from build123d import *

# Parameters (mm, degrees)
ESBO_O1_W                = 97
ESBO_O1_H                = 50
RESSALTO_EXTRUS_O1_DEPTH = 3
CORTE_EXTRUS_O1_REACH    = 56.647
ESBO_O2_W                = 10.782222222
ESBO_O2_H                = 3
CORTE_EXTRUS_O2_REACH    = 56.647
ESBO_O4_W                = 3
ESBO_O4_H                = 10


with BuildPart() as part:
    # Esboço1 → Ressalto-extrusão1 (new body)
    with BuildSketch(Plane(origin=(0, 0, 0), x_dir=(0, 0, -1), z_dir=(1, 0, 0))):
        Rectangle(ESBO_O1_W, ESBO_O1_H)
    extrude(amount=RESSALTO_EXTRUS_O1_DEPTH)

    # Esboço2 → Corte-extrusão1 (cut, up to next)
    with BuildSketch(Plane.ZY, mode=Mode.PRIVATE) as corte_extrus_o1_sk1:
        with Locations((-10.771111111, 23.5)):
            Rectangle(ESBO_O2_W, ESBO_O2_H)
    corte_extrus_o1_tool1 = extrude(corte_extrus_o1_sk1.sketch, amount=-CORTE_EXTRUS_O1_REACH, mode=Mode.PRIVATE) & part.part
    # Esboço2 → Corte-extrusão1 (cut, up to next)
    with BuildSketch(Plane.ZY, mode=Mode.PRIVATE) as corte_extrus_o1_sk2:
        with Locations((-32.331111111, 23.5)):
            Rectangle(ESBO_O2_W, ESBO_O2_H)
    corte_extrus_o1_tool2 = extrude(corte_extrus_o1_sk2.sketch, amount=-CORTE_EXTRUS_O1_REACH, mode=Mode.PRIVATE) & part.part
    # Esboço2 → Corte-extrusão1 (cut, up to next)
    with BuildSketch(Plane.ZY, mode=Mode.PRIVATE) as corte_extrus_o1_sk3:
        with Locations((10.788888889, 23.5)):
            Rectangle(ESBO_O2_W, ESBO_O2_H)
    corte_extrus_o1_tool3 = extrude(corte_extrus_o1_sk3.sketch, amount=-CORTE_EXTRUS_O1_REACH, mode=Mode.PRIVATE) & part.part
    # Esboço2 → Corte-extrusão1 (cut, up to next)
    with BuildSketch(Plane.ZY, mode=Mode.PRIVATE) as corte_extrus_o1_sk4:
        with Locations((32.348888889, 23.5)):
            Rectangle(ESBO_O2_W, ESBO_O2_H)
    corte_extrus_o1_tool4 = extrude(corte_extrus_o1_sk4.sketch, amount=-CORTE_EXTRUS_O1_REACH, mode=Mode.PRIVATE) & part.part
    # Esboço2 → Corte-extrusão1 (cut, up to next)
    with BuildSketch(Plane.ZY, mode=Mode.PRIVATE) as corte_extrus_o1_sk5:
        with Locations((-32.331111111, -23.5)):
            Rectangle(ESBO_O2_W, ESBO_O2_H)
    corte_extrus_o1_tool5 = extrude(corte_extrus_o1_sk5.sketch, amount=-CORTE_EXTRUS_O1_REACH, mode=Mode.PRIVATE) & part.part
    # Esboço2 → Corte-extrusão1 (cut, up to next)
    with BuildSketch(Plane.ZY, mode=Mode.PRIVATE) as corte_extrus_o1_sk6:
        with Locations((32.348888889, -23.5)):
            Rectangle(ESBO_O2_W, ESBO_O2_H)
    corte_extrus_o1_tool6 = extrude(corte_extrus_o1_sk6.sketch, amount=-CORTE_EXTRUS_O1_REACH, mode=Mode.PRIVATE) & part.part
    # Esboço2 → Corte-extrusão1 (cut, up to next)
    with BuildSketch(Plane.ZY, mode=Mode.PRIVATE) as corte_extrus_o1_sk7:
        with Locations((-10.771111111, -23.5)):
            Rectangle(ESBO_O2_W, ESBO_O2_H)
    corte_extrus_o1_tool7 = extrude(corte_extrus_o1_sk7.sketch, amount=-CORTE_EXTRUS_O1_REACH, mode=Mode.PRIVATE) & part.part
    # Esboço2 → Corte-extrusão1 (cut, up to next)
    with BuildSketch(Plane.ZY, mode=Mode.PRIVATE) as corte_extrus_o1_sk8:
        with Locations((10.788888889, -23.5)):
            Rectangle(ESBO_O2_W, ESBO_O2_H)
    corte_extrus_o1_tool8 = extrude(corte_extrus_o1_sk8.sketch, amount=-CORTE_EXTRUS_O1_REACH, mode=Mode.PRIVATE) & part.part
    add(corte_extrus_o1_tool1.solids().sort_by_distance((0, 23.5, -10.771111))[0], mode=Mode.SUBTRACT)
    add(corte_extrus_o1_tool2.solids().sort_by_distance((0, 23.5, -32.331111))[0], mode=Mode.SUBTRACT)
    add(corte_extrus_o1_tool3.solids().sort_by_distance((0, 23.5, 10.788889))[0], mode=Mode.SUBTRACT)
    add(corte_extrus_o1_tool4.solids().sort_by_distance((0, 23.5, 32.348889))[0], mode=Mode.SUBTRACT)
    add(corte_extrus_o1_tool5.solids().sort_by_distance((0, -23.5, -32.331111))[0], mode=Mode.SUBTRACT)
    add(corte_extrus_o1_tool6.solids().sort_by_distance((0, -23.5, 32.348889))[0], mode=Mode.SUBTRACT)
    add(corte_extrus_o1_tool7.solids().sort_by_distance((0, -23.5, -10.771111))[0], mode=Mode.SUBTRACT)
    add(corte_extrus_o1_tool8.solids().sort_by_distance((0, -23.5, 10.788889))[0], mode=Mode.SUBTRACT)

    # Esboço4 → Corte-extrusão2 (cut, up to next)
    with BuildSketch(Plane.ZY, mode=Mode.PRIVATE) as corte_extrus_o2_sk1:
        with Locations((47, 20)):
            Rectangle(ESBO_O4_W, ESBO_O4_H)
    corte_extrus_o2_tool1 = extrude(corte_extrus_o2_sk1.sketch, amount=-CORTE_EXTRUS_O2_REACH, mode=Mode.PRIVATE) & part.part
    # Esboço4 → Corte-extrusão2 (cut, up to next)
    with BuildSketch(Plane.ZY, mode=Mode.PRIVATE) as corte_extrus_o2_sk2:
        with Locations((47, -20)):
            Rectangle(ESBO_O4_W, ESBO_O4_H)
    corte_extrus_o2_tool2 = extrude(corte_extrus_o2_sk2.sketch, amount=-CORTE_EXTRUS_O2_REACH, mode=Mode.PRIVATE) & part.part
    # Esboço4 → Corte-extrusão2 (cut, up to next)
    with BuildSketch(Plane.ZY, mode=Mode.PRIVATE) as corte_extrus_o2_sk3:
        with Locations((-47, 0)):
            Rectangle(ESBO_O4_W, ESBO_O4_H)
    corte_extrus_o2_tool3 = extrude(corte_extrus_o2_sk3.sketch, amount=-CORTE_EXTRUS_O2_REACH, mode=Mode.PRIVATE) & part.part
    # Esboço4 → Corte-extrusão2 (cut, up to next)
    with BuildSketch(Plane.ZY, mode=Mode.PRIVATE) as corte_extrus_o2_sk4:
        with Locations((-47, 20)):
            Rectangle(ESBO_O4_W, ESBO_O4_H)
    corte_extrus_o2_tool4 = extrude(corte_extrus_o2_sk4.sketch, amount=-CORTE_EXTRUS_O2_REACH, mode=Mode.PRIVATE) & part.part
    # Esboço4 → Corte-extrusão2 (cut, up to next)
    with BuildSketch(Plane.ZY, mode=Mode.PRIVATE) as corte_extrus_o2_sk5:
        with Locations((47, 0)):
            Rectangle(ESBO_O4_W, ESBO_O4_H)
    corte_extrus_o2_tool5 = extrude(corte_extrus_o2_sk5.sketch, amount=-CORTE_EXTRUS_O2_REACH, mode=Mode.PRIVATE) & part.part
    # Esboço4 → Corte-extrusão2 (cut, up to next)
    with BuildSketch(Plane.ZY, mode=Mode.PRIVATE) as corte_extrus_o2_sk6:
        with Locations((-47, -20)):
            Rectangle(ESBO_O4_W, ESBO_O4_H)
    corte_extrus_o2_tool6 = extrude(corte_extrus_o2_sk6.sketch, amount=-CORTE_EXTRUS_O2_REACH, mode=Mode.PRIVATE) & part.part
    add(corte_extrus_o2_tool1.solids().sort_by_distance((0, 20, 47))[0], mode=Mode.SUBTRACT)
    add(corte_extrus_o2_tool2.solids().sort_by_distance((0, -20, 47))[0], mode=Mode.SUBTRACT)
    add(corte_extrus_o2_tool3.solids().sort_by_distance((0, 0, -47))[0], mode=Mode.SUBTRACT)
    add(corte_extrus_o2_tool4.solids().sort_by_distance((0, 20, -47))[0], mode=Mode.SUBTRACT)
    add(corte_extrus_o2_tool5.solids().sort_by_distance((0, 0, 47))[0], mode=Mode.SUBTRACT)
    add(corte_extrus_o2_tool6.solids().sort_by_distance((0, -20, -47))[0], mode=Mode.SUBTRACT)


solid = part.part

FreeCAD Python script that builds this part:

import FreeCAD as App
import Part
import Sketcher

V = App.Vector
Q = App.Units.Quantity

doc = App.newDocument("Part")
body = doc.addObject("PartDesign::Body", "Body")

# Sketch on YZ plane
sketch1 = body.newObject("Sketcher::SketchObject", "Sketch")
sketch1.AttachmentSupport = (doc.getObject("YZ_Plane"), [""])
sketch1.MapMode = "FlatFace"
sketch1.addGeometry([
    Part.LineSegment(V(25, 48, 0), V(-25, 48, 0)),
    Part.LineSegment(V(-25, 48, 0), V(-25, -48, 0)),
    Part.LineSegment(V(-25, -48, 0), V(25, -48, 0)),
    Part.LineSegment(V(25, -48, 0), V(25, 48, 0)),
], False)
sketch1.addConstraint([
    Sketcher.Constraint("Coincident", 0, 2, 1, 1),
    Sketcher.Constraint("Coincident", 1, 2, 2, 1),
    Sketcher.Constraint("Coincident", 2, 2, 3, 1),
    Sketcher.Constraint("Coincident", 3, 2, 0, 1),
    Sketcher.Constraint("Horizontal", 0),
    Sketcher.Constraint("Vertical", 1),
    Sketcher.Constraint("Horizontal", 2),
    Sketcher.Constraint("Vertical", 3),
    Sketcher.Constraint("Symmetric", 0, 2, 2, 2, -1, 1),
    Sketcher.Constraint("DistanceX", 0, 2, 0, 1, Q("50 mm")),
    Sketcher.Constraint("DistanceY", 1, 2, 1, 1, Q("97 mm")),
])
pad1 = body.newObject("PartDesign::Pad", "Pad")
pad1.Profile = sketch1
pad1.Length = 3

# Sketch on YZ plane
sketch2 = body.newObject("Sketcher::SketchObject", "Sketch001")
sketch2.AttachmentSupport = (doc.getObject("YZ_Plane"), [""])
sketch2.MapMode = "FlatFace"
sketch2.addGeometry([
    Part.LineSegment(V(25, -16.2, 0), V(22, -16.2, 0)),
    Part.LineSegment(V(22, -16.2, 0), V(22, -5.4, 0)),
    Part.LineSegment(V(22, -5.4, 0), V(25, -5.4, 0)),
    Part.LineSegment(V(25, -5.4, 0), V(25, -16.2, 0)),
], False)
sketch2.addConstraint([
    Sketcher.Constraint("Coincident", 0, 2, 1, 1),
    Sketcher.Constraint("Coincident", 1, 2, 2, 1),
    Sketcher.Constraint("Coincident", 2, 2, 3, 1),
    Sketcher.Constraint("Coincident", 3, 2, 0, 1),
    Sketcher.Constraint("Horizontal", 0),
    Sketcher.Constraint("Vertical", 1),
    Sketcher.Constraint("Horizontal", 2),
    Sketcher.Constraint("Vertical", 3),
    Sketcher.Constraint("DistanceX", 0, 2, 0, 1, Q("3 mm")),
    Sketcher.Constraint("DistanceX", -1, 1, 0, 2, Q("22 mm")),
    Sketcher.Constraint("DistanceY", 1, 2, -1, 1, Q("5.38 mm")),
    Sketcher.Constraint("DistanceY", 1, 1, 1, 2, Q("10.782222 mm")),
])
pocket1 = body.newObject("PartDesign::Pocket", "Pocket")
pocket1.Profile = sketch2
pocket1.Type = "UpToFirst"
pocket1.Reversed = True

# Sketch on YZ plane
sketch3 = body.newObject("Sketcher::SketchObject", "Sketch002")
sketch3.AttachmentSupport = (doc.getObject("YZ_Plane"), [""])
sketch3.MapMode = "FlatFace"
sketch3.addGeometry([
    Part.LineSegment(V(25, -37.7, 0), V(22, -37.7, 0)),
    Part.LineSegment(V(22, -37.7, 0), V(22, -26.9, 0)),
    Part.LineSegment(V(22, -26.9, 0), V(25, -26.9, 0)),
    Part.LineSegment(V(25, -26.9, 0), V(25, -37.7, 0)),
], False)
sketch3.addConstraint([
    Sketcher.Constraint("Coincident", 0, 2, 1, 1),
    Sketcher.Constraint("Coincident", 1, 2, 2, 1),
    Sketcher.Constraint("Coincident", 2, 2, 3, 1),
    Sketcher.Constraint("Coincident", 3, 2, 0, 1),
    Sketcher.Constraint("Horizontal", 0),
    Sketcher.Constraint("Vertical", 1),
    Sketcher.Constraint("Horizontal", 2),
    Sketcher.Constraint("Vertical", 3),
    Sketcher.Constraint("DistanceX", 0, 2, 0, 1, Q("3 mm")),
    Sketcher.Constraint("DistanceX", -1, 1, 0, 2, Q("22 mm")),
    Sketcher.Constraint("DistanceY", 1, 2, -1, 1, Q("26.94 mm")),
    Sketcher.Constraint("DistanceY", 1, 1, 1, 2, Q("10.782222 mm")),
])
pocket2 = body.newObject("PartDesign::Pocket", "Pocket001")
pocket2.Profile = sketch3
pocket2.Type = "UpToFirst"
pocket2.Reversed = True

# Sketch on YZ plane
sketch4 = body.newObject("Sketcher::SketchObject", "Sketch003")
sketch4.AttachmentSupport = (doc.getObject("YZ_Plane"), [""])
sketch4.MapMode = "FlatFace"
sketch4.addGeometry([
    Part.LineSegment(V(25, 5.4, 0), V(22, 5.4, 0)),
    Part.LineSegment(V(22, 5.4, 0), V(22, 16.2, 0)),
    Part.LineSegment(V(22, 16.2, 0), V(25, 16.2, 0)),
    Part.LineSegment(V(25, 16.2, 0), V(25, 5.4, 0)),
], False)
sketch4.addConstraint([
    Sketcher.Constraint("Coincident", 0, 2, 1, 1),
    Sketcher.Constraint("Coincident", 1, 2, 2, 1),
    Sketcher.Constraint("Coincident", 2, 2, 3, 1),
    Sketcher.Constraint("Coincident", 3, 2, 0, 1),
    Sketcher.Constraint("Horizontal", 0),
    Sketcher.Constraint("Vertical", 1),
    Sketcher.Constraint("Horizontal", 2),
    Sketcher.Constraint("Vertical", 3),
    Sketcher.Constraint("DistanceX", 0, 2, 0, 1, Q("3 mm")),
    Sketcher.Constraint("DistanceX", -1, 1, 0, 2, Q("22 mm")),
    Sketcher.Constraint("DistanceY", -1, 1, 1, 2, Q("16.18 mm")),
    Sketcher.Constraint("DistanceY", 1, 1, 1, 2, Q("10.782222 mm")),
])
pocket3 = body.newObject("PartDesign::Pocket", "Pocket002")
pocket3.Profile = sketch4
pocket3.Type = "UpToFirst"
pocket3.Reversed = True

# Sketch on YZ plane
sketch5 = body.newObject("Sketcher::SketchObject", "Sketch004")
sketch5.AttachmentSupport = (doc.getObject("YZ_Plane"), [""])
sketch5.MapMode = "FlatFace"
sketch5.addGeometry([
    Part.LineSegment(V(25, 27, 0), V(22, 27, 0)),
    Part.LineSegment(V(22, 27, 0), V(22, 37.7, 0)),
    Part.LineSegment(V(22, 37.7, 0), V(25, 37.7, 0)),
    Part.LineSegment(V(25, 37.7, 0), V(25, 27, 0)),
], False)
sketch5.addConstraint([
    Sketcher.Constraint("Coincident", 0, 2, 1, 1),
    Sketcher.Constraint("Coincident", 1, 2, 2, 1),
    Sketcher.Constraint("Coincident", 2, 2, 3, 1),
    Sketcher.Constraint("Coincident", 3, 2, 0, 1),
    Sketcher.Constraint("Horizontal", 0),
    Sketcher.Constraint("Vertical", 1),
    Sketcher.Constraint("Horizontal", 2),
    Sketcher.Constraint("Vertical", 3),
    Sketcher.Constraint("DistanceX", 0, 2, 0, 1, Q("3 mm")),
    Sketcher.Constraint("DistanceX", -1, 1, 0, 2, Q("22 mm")),
    Sketcher.Constraint("DistanceY", -1, 1, 1, 2, Q("37.74 mm")),
    Sketcher.Constraint("DistanceY", 1, 1, 1, 2, Q("10.782222 mm")),
])
pocket4 = body.newObject("PartDesign::Pocket", "Pocket003")
pocket4.Profile = sketch5
pocket4.Type = "UpToFirst"
pocket4.Reversed = True

# Sketch on YZ plane
sketch6 = body.newObject("Sketcher::SketchObject", "Sketch005")
sketch6.AttachmentSupport = (doc.getObject("YZ_Plane"), [""])
sketch6.MapMode = "FlatFace"
sketch6.addGeometry([
    Part.LineSegment(V(-22, -37.7, 0), V(-25, -37.7, 0)),
    Part.LineSegment(V(-25, -37.7, 0), V(-25, -26.9, 0)),
    Part.LineSegment(V(-25, -26.9, 0), V(-22, -26.9, 0)),
    Part.LineSegment(V(-22, -26.9, 0), V(-22, -37.7, 0)),
], False)
sketch6.addConstraint([
    Sketcher.Constraint("Coincident", 0, 2, 1, 1),
    Sketcher.Constraint("Coincident", 1, 2, 2, 1),
    Sketcher.Constraint("Coincident", 2, 2, 3, 1),
    Sketcher.Constraint("Coincident", 3, 2, 0, 1),
    Sketcher.Constraint("Horizontal", 0),
    Sketcher.Constraint("Vertical", 1),
    Sketcher.Constraint("Horizontal", 2),
    Sketcher.Constraint("Vertical", 3),
    Sketcher.Constraint("DistanceX", 0, 2, 0, 1, Q("3 mm")),
    Sketcher.Constraint("DistanceX", 0, 2, -1, 1, Q("25 mm")),
    Sketcher.Constraint("DistanceY", 1, 2, -1, 1, Q("26.94 mm")),
    Sketcher.Constraint("DistanceY", 1, 1, 1, 2, Q("10.782222 mm")),
])
pocket5 = body.newObject("PartDesign::Pocket", "Pocket004")
pocket5.Profile = sketch6
pocket5.Type = "UpToFirst"
pocket5.Reversed = True

# Sketch on YZ plane
sketch7 = body.newObject("Sketcher::SketchObject", "Sketch006")
sketch7.AttachmentSupport = (doc.getObject("YZ_Plane"), [""])
sketch7.MapMode = "FlatFace"
sketch7.addGeometry([
    Part.LineSegment(V(-22, 27, 0), V(-25, 27, 0)),
    Part.LineSegment(V(-25, 27, 0), V(-25, 37.7, 0)),
    Part.LineSegment(V(-25, 37.7, 0), V(-22, 37.7, 0)),
    Part.LineSegment(V(-22, 37.7, 0), V(-22, 27, 0)),
], False)
sketch7.addConstraint([
    Sketcher.Constraint("Coincident", 0, 2, 1, 1),
    Sketcher.Constraint("Coincident", 1, 2, 2, 1),
    Sketcher.Constraint("Coincident", 2, 2, 3, 1),
    Sketcher.Constraint("Coincident", 3, 2, 0, 1),
    Sketcher.Constraint("Horizontal", 0),
    Sketcher.Constraint("Vertical", 1),
    Sketcher.Constraint("Horizontal", 2),
    Sketcher.Constraint("Vertical", 3),
    Sketcher.Constraint("DistanceX", 0, 2, 0, 1, Q("3 mm")),
    Sketcher.Constraint("DistanceX", 0, 2, -1, 1, Q("25 mm")),
    Sketcher.Constraint("DistanceY", -1, 1, 1, 2, Q("37.74 mm")),
    Sketcher.Constraint("DistanceY", 1, 1, 1, 2, Q("10.782222 mm")),
])
pocket6 = body.newObject("PartDesign::Pocket", "Pocket005")
pocket6.Profile = sketch7
pocket6.Type = "UpToFirst"
pocket6.Reversed = True

# Sketch on YZ plane
sketch8 = body.newObject("Sketcher::SketchObject", "Sketch007")
sketch8.AttachmentSupport = (doc.getObject("YZ_Plane"), [""])
sketch8.MapMode = "FlatFace"
sketch8.addGeometry([
    Part.LineSegment(V(-22, -16.2, 0), V(-25, -16.2, 0)),
    Part.LineSegment(V(-25, -16.2, 0), V(-25, -5.4, 0)),
    Part.LineSegment(V(-25, -5.4, 0), V(-22, -5.4, 0)),
    Part.LineSegment(V(-22, -5.4, 0), V(-22, -16.2, 0)),
], False)
sketch8.addConstraint([
    Sketcher.Constraint("Coincident", 0, 2, 1, 1),
    Sketcher.Constraint("Coincident", 1, 2, 2, 1),
    Sketcher.Constraint("Coincident", 2, 2, 3, 1),
    Sketcher.Constraint("Coincident", 3, 2, 0, 1),
    Sketcher.Constraint("Horizontal", 0),
    Sketcher.Constraint("Vertical", 1),
    Sketcher.Constraint("Horizontal", 2),
    Sketcher.Constraint("Vertical", 3),
    Sketcher.Constraint("DistanceX", 0, 2, 0, 1, Q("3 mm")),
    Sketcher.Constraint("DistanceX", 0, 2, -1, 1, Q("25 mm")),
    Sketcher.Constraint("DistanceY", 1, 2, -1, 1, Q("5.38 mm")),
    Sketcher.Constraint("DistanceY", 1, 1, 1, 2, Q("10.782222 mm")),
])
pocket7 = body.newObject("PartDesign::Pocket", "Pocket006")
pocket7.Profile = sketch8
pocket7.Type = "UpToFirst"
pocket7.Reversed = True

# Sketch on YZ plane
sketch9 = body.newObject("Sketcher::SketchObject", "Sketch008")
sketch9.AttachmentSupport = (doc.getObject("YZ_Plane"), [""])
sketch9.MapMode = "FlatFace"
sketch9.addGeometry([
    Part.LineSegment(V(-22, 5.4, 0), V(-25, 5.4, 0)),
    Part.LineSegment(V(-25, 5.4, 0), V(-25, 16.2, 0)),
    Part.LineSegment(V(-25, 16.2, 0), V(-22, 16.2, 0)),
    Part.LineSegment(V(-22, 16.2, 0), V(-22, 5.4, 0)),
], False)
sketch9.addConstraint([
    Sketcher.Constraint("Coincident", 0, 2, 1, 1),
    Sketcher.Constraint("Coincident", 1, 2, 2, 1),
    Sketcher.Constraint("Coincident", 2, 2, 3, 1),
    Sketcher.Constraint("Coincident", 3, 2, 0, 1),
    Sketcher.Constraint("Horizontal", 0),
    Sketcher.Constraint("Vertical", 1),
    Sketcher.Constraint("Horizontal", 2),
    Sketcher.Constraint("Vertical", 3),
    Sketcher.Constraint("DistanceX", 0, 2, 0, 1, Q("3 mm")),
    Sketcher.Constraint("DistanceX", 0, 2, -1, 1, Q("25 mm")),
    Sketcher.Constraint("DistanceY", -1, 1, 1, 2, Q("16.18 mm")),
    Sketcher.Constraint("DistanceY", 1, 1, 1, 2, Q("10.782222 mm")),
])
pocket8 = body.newObject("PartDesign::Pocket", "Pocket007")
pocket8.Profile = sketch9
pocket8.Type = "UpToFirst"
pocket8.Reversed = True

# Sketch on YZ plane
sketch10 = body.newObject("Sketcher::SketchObject", "Sketch009")
sketch10.AttachmentSupport = (doc.getObject("YZ_Plane"), [""])
sketch10.MapMode = "FlatFace"
sketch10.addGeometry([
    Part.LineSegment(V(25, 45.5, 0), V(15, 45.5, 0)),
    Part.LineSegment(V(15, 45.5, 0), V(15, 48.5, 0)),
    Part.LineSegment(V(15, 48.5, 0), V(25, 48.5, 0)),
    Part.LineSegment(V(25, 48.5, 0), V(25, 45.5, 0)),
], False)
sketch10.addConstraint([
    Sketcher.Constraint("Coincident", 0, 2, 1, 1),
    Sketcher.Constraint("Coincident", 1, 2, 2, 1),
    Sketcher.Constraint("Coincident", 2, 2, 3, 1),
    Sketcher.Constraint("Coincident", 3, 2, 0, 1),
    Sketcher.Constraint("Horizontal", 0),
    Sketcher.Constraint("Vertical", 1),
    Sketcher.Constraint("Horizontal", 2),
    Sketcher.Constraint("Vertical", 3),
    Sketcher.Constraint("DistanceX", 0, 2, 0, 1, Q("10 mm")),
    Sketcher.Constraint("DistanceY", 1, 1, 1, 2, Q("3 mm")),
    Sketcher.Constraint("DistanceX", -1, 1, 0, 2, Q("15 mm")),
    Sketcher.Constraint("DistanceY", -1, 1, 0, 2, Q("45.5 mm")),
])
pocket9 = body.newObject("PartDesign::Pocket", "Pocket008")
pocket9.Profile = sketch10
pocket9.Type = "UpToFirst"
pocket9.Reversed = True

# Sketch on YZ plane
sketch11 = body.newObject("Sketcher::SketchObject", "Sketch010")
sketch11.AttachmentSupport = (doc.getObject("YZ_Plane"), [""])
sketch11.MapMode = "FlatFace"
sketch11.addGeometry([
    Part.LineSegment(V(-15, 45.5, 0), V(-25, 45.5, 0)),
    Part.LineSegment(V(-25, 45.5, 0), V(-25, 48.5, 0)),
    Part.LineSegment(V(-25, 48.5, 0), V(-15, 48.5, 0)),
    Part.LineSegment(V(-15, 48.5, 0), V(-15, 45.5, 0)),
], False)
sketch11.addConstraint([
    Sketcher.Constraint("Coincident", 0, 2, 1, 1),
    Sketcher.Constraint("Coincident", 1, 2, 2, 1),
    Sketcher.Constraint("Coincident", 2, 2, 3, 1),
    Sketcher.Constraint("Coincident", 3, 2, 0, 1),
    Sketcher.Constraint("Horizontal", 0),
    Sketcher.Constraint("Vertical", 1),
    Sketcher.Constraint("Horizontal", 2),
    Sketcher.Constraint("Vertical", 3),
    Sketcher.Constraint("DistanceX", 0, 2, 0, 1, Q("10 mm")),
    Sketcher.Constraint("DistanceY", 1, 1, 1, 2, Q("3 mm")),
    Sketcher.Constraint("DistanceX", 0, 2, -1, 1, Q("25 mm")),
    Sketcher.Constraint("DistanceY", -1, 1, 0, 2, Q("45.5 mm")),
])
pocket10 = body.newObject("PartDesign::Pocket", "Pocket009")
pocket10.Profile = sketch11
pocket10.Type = "UpToFirst"
pocket10.Reversed = True

# Sketch on YZ plane
sketch12 = body.newObject("Sketcher::SketchObject", "Sketch011")
sketch12.AttachmentSupport = (doc.getObject("YZ_Plane"), [""])
sketch12.MapMode = "FlatFace"
sketch12.addGeometry([
    Part.LineSegment(V(5, -48.5, 0), V(-5, -48.5, 0)),
    Part.LineSegment(V(-5, -48.5, 0), V(-5, -45.5, 0)),
    Part.LineSegment(V(-5, -45.5, 0), V(5, -45.5, 0)),
    Part.LineSegment(V(5, -45.5, 0), V(5, -48.5, 0)),
], False)
sketch12.addConstraint([
    Sketcher.Constraint("Coincident", 0, 2, 1, 1),
    Sketcher.Constraint("Coincident", 1, 2, 2, 1),
    Sketcher.Constraint("Coincident", 2, 2, 3, 1),
    Sketcher.Constraint("Coincident", 3, 2, 0, 1),
    Sketcher.Constraint("Horizontal", 0),
    Sketcher.Constraint("Vertical", 1),
    Sketcher.Constraint("Horizontal", 2),
    Sketcher.Constraint("Vertical", 3),
    Sketcher.Constraint("DistanceX", 0, 2, 0, 1, Q("10 mm")),
    Sketcher.Constraint("DistanceY", 1, 1, 1, 2, Q("3 mm")),
    Sketcher.Constraint("DistanceX", 0, 2, -1, 1, Q("5 mm")),
    Sketcher.Constraint("DistanceY", 0, 2, -1, 1, Q("48.5 mm")),
])
pocket11 = body.newObject("PartDesign::Pocket", "Pocket010")
pocket11.Profile = sketch12
pocket11.Type = "UpToFirst"
pocket11.Reversed = True

# Sketch on YZ plane
sketch13 = body.newObject("Sketcher::SketchObject", "Sketch012")
sketch13.AttachmentSupport = (doc.getObject("YZ_Plane"), [""])
sketch13.MapMode = "FlatFace"
sketch13.addGeometry([
    Part.LineSegment(V(25, -48.5, 0), V(15, -48.5, 0)),
    Part.LineSegment(V(15, -48.5, 0), V(15, -45.5, 0)),
    Part.LineSegment(V(15, -45.5, 0), V(25, -45.5, 0)),
    Part.LineSegment(V(25, -45.5, 0), V(25, -48.5, 0)),
], False)
sketch13.addConstraint([
    Sketcher.Constraint("Coincident", 0, 2, 1, 1),
    Sketcher.Constraint("Coincident", 1, 2, 2, 1),
    Sketcher.Constraint("Coincident", 2, 2, 3, 1),
    Sketcher.Constraint("Coincident", 3, 2, 0, 1),
    Sketcher.Constraint("Horizontal", 0),
    Sketcher.Constraint("Vertical", 1),
    Sketcher.Constraint("Horizontal", 2),
    Sketcher.Constraint("Vertical", 3),
    Sketcher.Constraint("DistanceX", 0, 2, 0, 1, Q("10 mm")),
    Sketcher.Constraint("DistanceY", 1, 1, 1, 2, Q("3 mm")),
    Sketcher.Constraint("DistanceX", -1, 1, 0, 2, Q("15 mm")),
    Sketcher.Constraint("DistanceY", 0, 2, -1, 1, Q("48.5 mm")),
])
pocket12 = body.newObject("PartDesign::Pocket", "Pocket011")
pocket12.Profile = sketch13
pocket12.Type = "UpToFirst"
pocket12.Reversed = True

# Sketch on YZ plane
sketch14 = body.newObject("Sketcher::SketchObject", "Sketch013")
sketch14.AttachmentSupport = (doc.getObject("YZ_Plane"), [""])
sketch14.MapMode = "FlatFace"
sketch14.addGeometry([
    Part.LineSegment(V(5, 45.5, 0), V(-5, 45.5, 0)),
    Part.LineSegment(V(-5, 45.5, 0), V(-5, 48.5, 0)),
    Part.LineSegment(V(-5, 48.5, 0), V(5, 48.5, 0)),
    Part.LineSegment(V(5, 48.5, 0), V(5, 45.5, 0)),
], False)
sketch14.addConstraint([
    Sketcher.Constraint("Coincident", 0, 2, 1, 1),
    Sketcher.Constraint("Coincident", 1, 2, 2, 1),
    Sketcher.Constraint("Coincident", 2, 2, 3, 1),
    Sketcher.Constraint("Coincident", 3, 2, 0, 1),
    Sketcher.Constraint("Horizontal", 0),
    Sketcher.Constraint("Vertical", 1),
    Sketcher.Constraint("Horizontal", 2),
    Sketcher.Constraint("Vertical", 3),
    Sketcher.Constraint("DistanceX", 0, 2, 0, 1, Q("10 mm")),
    Sketcher.Constraint("DistanceY", 1, 1, 1, 2, Q("3 mm")),
    Sketcher.Constraint("DistanceX", 0, 2, -1, 1, Q("5 mm")),
    Sketcher.Constraint("DistanceY", -1, 1, 0, 2, Q("45.5 mm")),
])
pocket13 = body.newObject("PartDesign::Pocket", "Pocket012")
pocket13.Profile = sketch14
pocket13.Type = "UpToFirst"
pocket13.Reversed = True

# Sketch on YZ plane
sketch15 = body.newObject("Sketcher::SketchObject", "Sketch014")
sketch15.AttachmentSupport = (doc.getObject("YZ_Plane"), [""])
sketch15.MapMode = "FlatFace"
sketch15.addGeometry([
    Part.LineSegment(V(-15, -48.5, 0), V(-25, -48.5, 0)),
    Part.LineSegment(V(-25, -48.5, 0), V(-25, -45.5, 0)),
    Part.LineSegment(V(-25, -45.5, 0), V(-15, -45.5, 0)),
    Part.LineSegment(V(-15, -45.5, 0), V(-15, -48.5, 0)),
], False)
sketch15.addConstraint([
    Sketcher.Constraint("Coincident", 0, 2, 1, 1),
    Sketcher.Constraint("Coincident", 1, 2, 2, 1),
    Sketcher.Constraint("Coincident", 2, 2, 3, 1),
    Sketcher.Constraint("Coincident", 3, 2, 0, 1),
    Sketcher.Constraint("Horizontal", 0),
    Sketcher.Constraint("Vertical", 1),
    Sketcher.Constraint("Horizontal", 2),
    Sketcher.Constraint("Vertical", 3),
    Sketcher.Constraint("DistanceX", 0, 2, 0, 1, Q("10 mm")),
    Sketcher.Constraint("DistanceY", 1, 1, 1, 2, Q("3 mm")),
    Sketcher.Constraint("DistanceX", 0, 2, -1, 1, Q("25 mm")),
    Sketcher.Constraint("DistanceY", 0, 2, -1, 1, Q("48.5 mm")),
])
pocket14 = body.newObject("PartDesign::Pocket", "Pocket013")
pocket14.Profile = sketch15
pocket14.Type = "UpToFirst"
pocket14.Reversed = True

doc.recompute()
